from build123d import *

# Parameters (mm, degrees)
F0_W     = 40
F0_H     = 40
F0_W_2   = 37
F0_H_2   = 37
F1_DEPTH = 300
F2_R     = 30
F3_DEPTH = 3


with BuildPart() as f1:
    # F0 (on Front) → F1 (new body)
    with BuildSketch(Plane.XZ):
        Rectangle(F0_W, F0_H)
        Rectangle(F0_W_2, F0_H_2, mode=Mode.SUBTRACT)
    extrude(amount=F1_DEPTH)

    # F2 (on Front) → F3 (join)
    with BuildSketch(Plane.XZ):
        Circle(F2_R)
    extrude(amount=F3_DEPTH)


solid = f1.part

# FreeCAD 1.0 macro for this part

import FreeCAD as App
import Part
import Sketcher


def add_polygon(sketch, points):
    """Adds a closed chain of lines whose ends are joined by coincident constraints."""
    first, n = sketch.GeometryCount, len(points)
    for a, b in zip(points, points[1:] + points[:1]):
        sketch.addGeometry(Part.LineSegment(App.Vector(*a, 0), App.Vector(*b, 0)), False)
    for i in range(n):
        sketch.addConstraint(Sketcher.Constraint("Coincident", first + i, 2, first + (i + 1) % n, 1))

doc = App.newDocument("Part")
body = doc.addObject("PartDesign::Body", "Body")

sketch1 = doc.addObject("Sketcher::SketchObject", "Sketch")
body.addObject(sketch1)
sketch1.AttachmentSupport = (doc.XZ_Plane, [""])
sketch1.MapMode = "FlatFace"
add_polygon(sketch1, [(-20, 20), (-20, -20), (20, -20), (20, 20)])
add_polygon(sketch1, [(18, -18), (-18, -18), (-18, 18), (18, 18)])
sketch1.addConstraint(Sketcher.Constraint("Vertical", 0))
sketch1.addConstraint(Sketcher.Constraint("Horizontal", 1))
sketch1.addConstraint(Sketcher.Constraint("Vertical", 2))
sketch1.addConstraint(Sketcher.Constraint("Horizontal", 3))
sketch1.addConstraint(Sketcher.Constraint("Horizontal", 4))
sketch1.addConstraint(Sketcher.Constraint("Vertical", 5))
sketch1.addConstraint(Sketcher.Constraint("Horizontal", 6))
sketch1.addConstraint(Sketcher.Constraint("Vertical", 7))
sketch1.addConstraint(Sketcher.Constraint("Symmetric", 0, 2, 2, 2, -1, 1))
sketch1.addConstraint(Sketcher.Constraint("Symmetric", 4, 2, 6, 2, -1, 1))
sketch1.addConstraint(Sketcher.Constraint("Equal", 3, 0))
sketch1.addConstraint(Sketcher.Constraint("Equal", 6, 5))
sketch1.addConstraint(Sketcher.Constraint("DistanceX", 1, 1, 1, 2, 40.0))
sketch1.addConstraint(Sketcher.Constraint("DistanceX", 4, 2, 4, 1, 37.0))
pad1 = doc.addObject("PartDesign::Pad", "Pad")
body.addObject(pad1)
pad1.Profile = sketch1
pad1.Length = 300

sketch2 = doc.addObject("Sketcher::SketchObject", "Sketch001")
body.addObject(sketch2)
sketch2.AttachmentSupport = (doc.XZ_Plane, [""])
sketch2.MapMode = "FlatFace"
sketch2.addGeometry(Part.Circle(App.Vector(0, 0, 0), App.Vector(0, 0, 1), 30), False)
sketch2.addConstraint(Sketcher.Constraint("Coincident", 0, 3, -1, 1))
sketch2.addConstraint(Sketcher.Constraint("Diameter", 0, 60.0))
pad2 = doc.addObject("PartDesign::Pad", "Pad001")
body.addObject(pad2)
pad2.Profile = sketch2
pad2.Length = 3

doc.recompute()
